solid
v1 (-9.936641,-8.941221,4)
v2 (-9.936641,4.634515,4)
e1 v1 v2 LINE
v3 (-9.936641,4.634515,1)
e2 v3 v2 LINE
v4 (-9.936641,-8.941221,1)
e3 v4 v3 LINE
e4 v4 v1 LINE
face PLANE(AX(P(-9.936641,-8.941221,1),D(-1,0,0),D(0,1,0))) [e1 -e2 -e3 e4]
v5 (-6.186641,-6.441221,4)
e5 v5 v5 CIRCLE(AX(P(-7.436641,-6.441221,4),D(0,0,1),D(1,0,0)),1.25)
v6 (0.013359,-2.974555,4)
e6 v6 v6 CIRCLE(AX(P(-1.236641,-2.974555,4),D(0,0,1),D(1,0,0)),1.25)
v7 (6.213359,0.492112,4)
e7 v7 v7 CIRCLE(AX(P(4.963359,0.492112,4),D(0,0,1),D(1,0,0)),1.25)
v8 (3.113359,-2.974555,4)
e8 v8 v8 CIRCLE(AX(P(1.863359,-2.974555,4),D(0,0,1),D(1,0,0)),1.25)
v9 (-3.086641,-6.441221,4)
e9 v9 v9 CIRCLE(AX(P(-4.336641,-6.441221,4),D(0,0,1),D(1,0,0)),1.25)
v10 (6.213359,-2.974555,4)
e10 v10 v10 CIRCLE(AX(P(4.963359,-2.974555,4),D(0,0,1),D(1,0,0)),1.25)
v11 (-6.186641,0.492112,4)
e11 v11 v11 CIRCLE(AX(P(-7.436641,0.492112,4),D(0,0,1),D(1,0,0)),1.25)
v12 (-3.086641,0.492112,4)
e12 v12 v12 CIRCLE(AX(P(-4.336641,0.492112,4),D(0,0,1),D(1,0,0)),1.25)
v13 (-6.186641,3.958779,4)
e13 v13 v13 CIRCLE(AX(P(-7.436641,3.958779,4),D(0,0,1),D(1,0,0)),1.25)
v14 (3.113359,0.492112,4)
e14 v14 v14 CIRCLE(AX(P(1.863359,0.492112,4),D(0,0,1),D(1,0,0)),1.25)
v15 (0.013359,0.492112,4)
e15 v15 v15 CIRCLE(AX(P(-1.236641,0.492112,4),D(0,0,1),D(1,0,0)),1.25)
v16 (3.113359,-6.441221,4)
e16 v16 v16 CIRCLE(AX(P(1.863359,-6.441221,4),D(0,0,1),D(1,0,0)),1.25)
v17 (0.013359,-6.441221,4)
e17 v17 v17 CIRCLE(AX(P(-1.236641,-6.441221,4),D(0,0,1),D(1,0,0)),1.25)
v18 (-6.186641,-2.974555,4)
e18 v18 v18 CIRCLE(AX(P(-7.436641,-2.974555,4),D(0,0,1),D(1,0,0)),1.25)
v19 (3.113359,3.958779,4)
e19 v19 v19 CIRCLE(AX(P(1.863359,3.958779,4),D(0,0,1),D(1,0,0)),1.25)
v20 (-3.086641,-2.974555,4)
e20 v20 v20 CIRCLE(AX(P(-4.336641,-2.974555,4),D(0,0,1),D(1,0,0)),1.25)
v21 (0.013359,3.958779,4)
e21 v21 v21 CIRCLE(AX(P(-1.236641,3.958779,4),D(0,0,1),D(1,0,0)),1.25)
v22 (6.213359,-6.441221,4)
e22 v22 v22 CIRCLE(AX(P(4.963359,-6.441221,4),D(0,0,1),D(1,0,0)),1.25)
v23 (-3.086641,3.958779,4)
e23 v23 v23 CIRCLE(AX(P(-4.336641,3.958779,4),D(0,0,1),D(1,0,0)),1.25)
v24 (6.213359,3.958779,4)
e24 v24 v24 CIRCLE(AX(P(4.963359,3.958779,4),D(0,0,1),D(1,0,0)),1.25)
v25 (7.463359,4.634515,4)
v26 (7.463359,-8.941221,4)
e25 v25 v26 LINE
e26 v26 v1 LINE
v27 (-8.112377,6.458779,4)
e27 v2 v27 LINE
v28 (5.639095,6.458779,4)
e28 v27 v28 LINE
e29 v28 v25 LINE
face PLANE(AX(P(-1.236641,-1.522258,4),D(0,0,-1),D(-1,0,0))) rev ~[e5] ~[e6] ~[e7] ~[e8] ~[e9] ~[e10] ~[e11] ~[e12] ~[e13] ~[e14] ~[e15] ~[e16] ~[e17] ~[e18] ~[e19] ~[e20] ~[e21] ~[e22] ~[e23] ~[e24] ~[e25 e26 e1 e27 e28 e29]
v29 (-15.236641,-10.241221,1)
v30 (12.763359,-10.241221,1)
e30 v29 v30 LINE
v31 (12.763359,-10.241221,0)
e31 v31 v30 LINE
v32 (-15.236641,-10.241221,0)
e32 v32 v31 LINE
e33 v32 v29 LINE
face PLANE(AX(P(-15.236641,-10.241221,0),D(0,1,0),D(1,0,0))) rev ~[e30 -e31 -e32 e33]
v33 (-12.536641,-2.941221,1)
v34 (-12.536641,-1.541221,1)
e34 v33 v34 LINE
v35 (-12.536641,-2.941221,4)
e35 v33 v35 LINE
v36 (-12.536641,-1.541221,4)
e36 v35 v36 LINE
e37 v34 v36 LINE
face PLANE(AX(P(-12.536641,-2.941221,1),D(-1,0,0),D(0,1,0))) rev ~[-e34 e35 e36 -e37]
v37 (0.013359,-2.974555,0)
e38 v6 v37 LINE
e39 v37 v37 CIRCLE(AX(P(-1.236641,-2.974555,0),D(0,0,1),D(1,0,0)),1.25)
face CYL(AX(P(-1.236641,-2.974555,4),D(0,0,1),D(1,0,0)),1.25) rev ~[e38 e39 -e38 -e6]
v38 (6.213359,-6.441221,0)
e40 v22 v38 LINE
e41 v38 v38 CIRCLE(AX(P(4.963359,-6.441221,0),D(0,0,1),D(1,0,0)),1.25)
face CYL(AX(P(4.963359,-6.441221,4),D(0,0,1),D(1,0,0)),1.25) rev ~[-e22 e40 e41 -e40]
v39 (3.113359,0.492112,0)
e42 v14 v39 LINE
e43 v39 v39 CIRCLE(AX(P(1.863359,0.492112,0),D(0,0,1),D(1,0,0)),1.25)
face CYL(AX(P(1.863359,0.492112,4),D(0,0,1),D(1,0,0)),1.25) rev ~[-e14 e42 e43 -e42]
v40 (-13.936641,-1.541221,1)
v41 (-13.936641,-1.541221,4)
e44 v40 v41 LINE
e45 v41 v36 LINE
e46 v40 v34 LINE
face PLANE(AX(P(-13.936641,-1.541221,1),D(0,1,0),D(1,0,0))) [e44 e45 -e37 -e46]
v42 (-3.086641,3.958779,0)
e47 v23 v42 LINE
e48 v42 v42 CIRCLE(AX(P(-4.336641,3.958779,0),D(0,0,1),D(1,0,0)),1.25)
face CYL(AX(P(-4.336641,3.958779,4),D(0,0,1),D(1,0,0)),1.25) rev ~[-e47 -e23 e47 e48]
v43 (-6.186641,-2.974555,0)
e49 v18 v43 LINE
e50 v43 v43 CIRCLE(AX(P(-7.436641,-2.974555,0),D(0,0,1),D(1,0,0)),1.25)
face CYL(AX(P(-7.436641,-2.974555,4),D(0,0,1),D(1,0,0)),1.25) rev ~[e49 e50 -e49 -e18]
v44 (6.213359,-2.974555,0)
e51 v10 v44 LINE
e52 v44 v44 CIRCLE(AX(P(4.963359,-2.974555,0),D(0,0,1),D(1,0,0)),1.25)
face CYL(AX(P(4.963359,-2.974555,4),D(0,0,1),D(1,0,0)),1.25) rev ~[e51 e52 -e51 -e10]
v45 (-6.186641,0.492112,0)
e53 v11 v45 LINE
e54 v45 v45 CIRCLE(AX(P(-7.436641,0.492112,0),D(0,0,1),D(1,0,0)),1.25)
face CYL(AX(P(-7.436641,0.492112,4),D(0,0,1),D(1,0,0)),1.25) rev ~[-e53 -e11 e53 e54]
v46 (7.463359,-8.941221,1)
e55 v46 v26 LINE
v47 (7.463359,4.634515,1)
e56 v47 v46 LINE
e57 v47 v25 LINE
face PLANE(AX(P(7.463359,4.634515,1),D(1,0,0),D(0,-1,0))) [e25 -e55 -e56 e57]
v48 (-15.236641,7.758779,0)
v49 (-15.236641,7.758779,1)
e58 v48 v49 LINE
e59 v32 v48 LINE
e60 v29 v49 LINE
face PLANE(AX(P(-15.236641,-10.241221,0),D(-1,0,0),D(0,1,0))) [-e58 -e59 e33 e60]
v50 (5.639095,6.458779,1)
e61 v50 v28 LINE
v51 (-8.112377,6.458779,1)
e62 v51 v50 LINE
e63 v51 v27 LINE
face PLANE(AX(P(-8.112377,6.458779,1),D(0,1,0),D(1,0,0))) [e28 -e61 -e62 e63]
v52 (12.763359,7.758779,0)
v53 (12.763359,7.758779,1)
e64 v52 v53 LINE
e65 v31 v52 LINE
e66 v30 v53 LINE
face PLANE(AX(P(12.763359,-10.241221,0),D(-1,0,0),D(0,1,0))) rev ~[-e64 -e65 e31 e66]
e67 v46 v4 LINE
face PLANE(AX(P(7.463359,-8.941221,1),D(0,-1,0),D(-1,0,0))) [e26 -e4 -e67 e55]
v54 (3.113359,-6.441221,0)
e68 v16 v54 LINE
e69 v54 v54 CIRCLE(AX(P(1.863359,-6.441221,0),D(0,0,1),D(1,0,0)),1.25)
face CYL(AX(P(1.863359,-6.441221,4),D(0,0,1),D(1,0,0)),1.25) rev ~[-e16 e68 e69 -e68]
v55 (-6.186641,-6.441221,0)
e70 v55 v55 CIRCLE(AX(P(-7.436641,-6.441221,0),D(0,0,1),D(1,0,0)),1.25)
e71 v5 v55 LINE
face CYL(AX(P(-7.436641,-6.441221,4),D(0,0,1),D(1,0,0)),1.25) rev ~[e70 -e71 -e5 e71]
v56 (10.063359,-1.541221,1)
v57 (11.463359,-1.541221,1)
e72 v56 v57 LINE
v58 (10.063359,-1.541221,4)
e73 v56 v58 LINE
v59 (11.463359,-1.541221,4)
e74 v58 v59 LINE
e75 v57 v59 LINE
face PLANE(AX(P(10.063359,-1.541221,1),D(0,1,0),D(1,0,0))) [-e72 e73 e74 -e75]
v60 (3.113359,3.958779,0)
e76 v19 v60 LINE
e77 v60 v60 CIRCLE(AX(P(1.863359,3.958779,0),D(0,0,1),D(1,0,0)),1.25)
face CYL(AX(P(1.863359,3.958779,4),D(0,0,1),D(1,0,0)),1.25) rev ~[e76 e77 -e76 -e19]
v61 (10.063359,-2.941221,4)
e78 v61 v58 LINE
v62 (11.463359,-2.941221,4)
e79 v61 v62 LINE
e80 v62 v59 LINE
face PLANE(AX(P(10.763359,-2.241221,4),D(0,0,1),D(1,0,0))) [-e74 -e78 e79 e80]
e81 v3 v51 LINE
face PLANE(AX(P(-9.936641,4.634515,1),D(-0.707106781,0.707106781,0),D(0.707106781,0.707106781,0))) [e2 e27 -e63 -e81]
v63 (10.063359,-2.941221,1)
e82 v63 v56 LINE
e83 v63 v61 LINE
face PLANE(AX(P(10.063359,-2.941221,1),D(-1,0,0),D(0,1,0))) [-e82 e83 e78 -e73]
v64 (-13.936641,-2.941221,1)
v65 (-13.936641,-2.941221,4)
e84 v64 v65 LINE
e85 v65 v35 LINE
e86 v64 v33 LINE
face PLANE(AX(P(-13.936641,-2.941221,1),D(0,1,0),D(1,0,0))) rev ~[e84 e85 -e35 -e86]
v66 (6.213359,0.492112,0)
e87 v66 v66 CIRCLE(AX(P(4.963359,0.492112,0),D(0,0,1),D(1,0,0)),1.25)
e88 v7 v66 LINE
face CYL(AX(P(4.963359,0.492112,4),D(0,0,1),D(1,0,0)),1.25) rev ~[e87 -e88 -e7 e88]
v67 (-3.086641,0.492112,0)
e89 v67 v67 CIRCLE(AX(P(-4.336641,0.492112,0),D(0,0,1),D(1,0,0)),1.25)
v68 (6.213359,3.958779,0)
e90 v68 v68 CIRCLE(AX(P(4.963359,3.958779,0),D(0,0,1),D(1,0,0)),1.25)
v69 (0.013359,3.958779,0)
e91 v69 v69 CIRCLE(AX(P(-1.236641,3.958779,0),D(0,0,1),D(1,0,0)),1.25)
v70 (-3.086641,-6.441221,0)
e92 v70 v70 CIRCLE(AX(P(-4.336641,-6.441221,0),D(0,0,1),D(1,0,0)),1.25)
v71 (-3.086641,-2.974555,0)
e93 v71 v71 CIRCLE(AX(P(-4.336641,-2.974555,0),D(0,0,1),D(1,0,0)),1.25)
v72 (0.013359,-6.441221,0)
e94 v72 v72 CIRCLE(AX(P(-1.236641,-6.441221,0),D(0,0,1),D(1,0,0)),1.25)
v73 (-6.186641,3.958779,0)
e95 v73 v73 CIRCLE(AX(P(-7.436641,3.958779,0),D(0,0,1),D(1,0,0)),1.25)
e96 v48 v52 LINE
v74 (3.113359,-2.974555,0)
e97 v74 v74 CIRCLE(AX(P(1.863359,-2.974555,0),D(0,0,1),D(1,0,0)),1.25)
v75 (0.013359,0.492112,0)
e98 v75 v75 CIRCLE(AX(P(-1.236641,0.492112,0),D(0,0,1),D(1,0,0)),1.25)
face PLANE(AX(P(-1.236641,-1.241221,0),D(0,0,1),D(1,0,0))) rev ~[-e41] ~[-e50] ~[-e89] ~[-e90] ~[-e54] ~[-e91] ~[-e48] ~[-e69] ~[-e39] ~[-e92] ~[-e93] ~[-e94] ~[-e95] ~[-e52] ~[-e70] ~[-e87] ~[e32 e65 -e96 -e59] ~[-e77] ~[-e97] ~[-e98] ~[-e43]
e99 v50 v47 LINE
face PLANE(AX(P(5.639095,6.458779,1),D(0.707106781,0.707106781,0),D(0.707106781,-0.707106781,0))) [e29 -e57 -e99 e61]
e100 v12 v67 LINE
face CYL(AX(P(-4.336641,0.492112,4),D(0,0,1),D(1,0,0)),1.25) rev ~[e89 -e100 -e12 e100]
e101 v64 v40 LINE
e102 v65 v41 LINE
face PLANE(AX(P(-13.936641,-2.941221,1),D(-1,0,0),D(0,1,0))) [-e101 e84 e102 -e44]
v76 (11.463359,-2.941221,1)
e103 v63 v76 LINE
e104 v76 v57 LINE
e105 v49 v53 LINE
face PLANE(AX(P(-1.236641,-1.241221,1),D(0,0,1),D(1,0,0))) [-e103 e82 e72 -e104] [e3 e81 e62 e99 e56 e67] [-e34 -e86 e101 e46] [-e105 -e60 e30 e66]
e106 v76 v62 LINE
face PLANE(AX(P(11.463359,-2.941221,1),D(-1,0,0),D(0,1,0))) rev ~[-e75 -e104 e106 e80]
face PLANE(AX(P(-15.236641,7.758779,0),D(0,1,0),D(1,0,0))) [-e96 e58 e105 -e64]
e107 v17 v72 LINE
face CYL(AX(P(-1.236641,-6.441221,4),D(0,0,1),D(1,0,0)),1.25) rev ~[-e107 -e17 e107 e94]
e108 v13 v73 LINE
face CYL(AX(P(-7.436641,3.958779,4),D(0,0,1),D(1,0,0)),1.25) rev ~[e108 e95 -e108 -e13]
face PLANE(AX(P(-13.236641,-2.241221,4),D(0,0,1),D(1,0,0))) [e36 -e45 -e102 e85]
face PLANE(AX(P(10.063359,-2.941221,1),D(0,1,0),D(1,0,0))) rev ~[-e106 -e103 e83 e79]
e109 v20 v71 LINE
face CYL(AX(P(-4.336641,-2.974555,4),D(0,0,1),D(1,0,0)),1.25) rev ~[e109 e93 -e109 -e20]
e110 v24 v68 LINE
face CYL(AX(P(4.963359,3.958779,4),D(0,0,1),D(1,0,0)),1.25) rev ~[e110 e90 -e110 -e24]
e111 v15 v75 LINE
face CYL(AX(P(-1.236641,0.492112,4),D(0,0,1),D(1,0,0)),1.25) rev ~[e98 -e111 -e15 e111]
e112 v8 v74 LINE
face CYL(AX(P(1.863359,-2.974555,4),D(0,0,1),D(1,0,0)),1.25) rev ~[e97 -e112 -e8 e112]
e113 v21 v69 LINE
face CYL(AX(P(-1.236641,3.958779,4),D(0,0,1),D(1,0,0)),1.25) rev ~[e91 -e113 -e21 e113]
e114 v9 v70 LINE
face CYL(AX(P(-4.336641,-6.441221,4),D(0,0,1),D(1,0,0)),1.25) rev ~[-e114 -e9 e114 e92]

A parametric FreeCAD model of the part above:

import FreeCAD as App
import Part
import Sketcher
Q = App.Units.Quantity

doc = App.newDocument("Part")
body = doc.addObject("PartDesign::Body", "Body")

sketch1 = body.newObject("Sketcher::SketchObject", "Sketch")
sketch1.AttachmentSupport = (doc.getObject("XY_Plane"), [""])
sketch1.MapMode = "FlatFace"
sketch1.addGeometry([
    Part.LineSegment(App.Vector(-15, 8, 0), App.Vector(-15, -10, 0)),
    Part.LineSegment(App.Vector(-15, -10, 0), App.Vector(13, -10, 0)),
    Part.LineSegment(App.Vector(13, -10, 0), App.Vector(13, 8, 0)),
    Part.LineSegment(App.Vector(13, 8, 0), App.Vector(-15, 8, 0)),
], False)
sketch1.addConstraint([
    Sketcher.Constraint("Coincident", 0, 2, 1, 1),
    Sketcher.Constraint("Coincident", 1, 2, 2, 1),
    Sketcher.Constraint("Coincident", 2, 2, 3, 1),
    Sketcher.Constraint("Coincident", 3, 2, 0, 1),
    Sketcher.Constraint("Vertical", 0),
    Sketcher.Constraint("Horizontal", 1),
    Sketcher.Constraint("Vertical", 2),
    Sketcher.Constraint("Horizontal", 3),
    Sketcher.Constraint("DistanceX", 1, 1, 1, 2, Q("28 mm")),
    Sketcher.Constraint("DistanceY", 0, 2, 0, 1, Q("18 mm")),
    Sketcher.Constraint("DistanceX", 0, 2, -1, 1, Q("15.236641 mm")),
    Sketcher.Constraint("DistanceY", 0, 2, -1, 1, Q("10.241221 mm")),
])
pad1 = body.newObject("PartDesign::Pad", "Pad")
pad1.Profile = sketch1
pad1.Length = 1

sketch2 = body.newObject("Sketcher::SketchObject", "Sketch001")
sketch2.AttachmentSupport = (doc.getObject("XY_Plane"), [""])
sketch2.MapMode = "FlatFace"
sketch2.AttachmentOffset = App.Placement(App.Vector(0, 0, 1), App.Rotation())
sketch2.addGeometry([
    Part.LineSegment(App.Vector(10.1, -1.5, 0), App.Vector(10.1, -2.9, 0)),
    Part.LineSegment(App.Vector(10.1, -2.9, 0), App.Vector(11.5, -2.9, 0)),
    Part.LineSegment(App.Vector(11.5, -2.9, 0), App.Vector(11.5, -1.5, 0)),
    Part.LineSegment(App.Vector(11.5, -1.5, 0), App.Vector(10.1, -1.5, 0)),
    Part.LineSegment(App.Vector(-13.9, -1.5, 0), App.Vector(-13.9, -2.9, 0)),
    Part.LineSegment(App.Vector(-13.9, -2.9, 0), App.Vector(-12.5, -2.9, 0)),
    Part.LineSegment(App.Vector(-12.5, -2.9, 0), App.Vector(-12.5, -1.5, 0)),
    Part.LineSegment(App.Vector(-12.5, -1.5, 0), App.Vector(-13.9, -1.5, 0)),
    Part.LineSegment(App.Vector(5.6, 6.5, 0), App.Vector(-8.1, 6.5, 0)),
    Part.LineSegment(App.Vector(-8.1, 6.5, 0), App.Vector(-9.9, 4.6, 0)),
    Part.LineSegment(App.Vector(-9.9, 4.6, 0), App.Vector(-9.9, -8.9, 0)),
    Part.LineSegment(App.Vector(-9.9, -8.9, 0), App.Vector(7.5, -8.9, 0)),
    Part.LineSegment(App.Vector(7.5, -8.9, 0), App.Vector(7.5, 4.6, 0)),
    Part.LineSegment(App.Vector(7.5, 4.6, 0), App.Vector(5.6, 6.5, 0)),
], False)
sketch2.addConstraint([
    Sketcher.Constraint("Coincident", 0, 2, 1, 1),
    Sketcher.Constraint("Coincident", 1, 2, 2, 1),
    Sketcher.Constraint("Coincident", 2, 2, 3, 1),
    Sketcher.Constraint("Coincident", 3, 2, 0, 1),
    Sketcher.Constraint("Coincident", 4, 2, 5, 1),
    Sketcher.Constraint("Coincident", 5, 2, 6, 1),
    Sketcher.Constraint("Coincident", 6, 2, 7, 1),
    Sketcher.Constraint("Coincident", 7, 2, 4, 1),
    Sketcher.Constraint("Coincident", 8, 2, 9, 1),
    Sketcher.Constraint("Coincident", 9, 2, 10, 1),
    Sketcher.Constraint("Coincident", 10, 2, 11, 1),
    Sketcher.Constraint("Coincident", 11, 2, 12, 1),
    Sketcher.Constraint("Coincident", 12, 2, 13, 1),
    Sketcher.Constraint("Coincident", 13, 2, 8, 1),
    Sketcher.Constraint("Vertical", 0),
    Sketcher.Constraint("Horizontal", 1),
    Sketcher.Constraint("Vertical", 2),
    Sketcher.Constraint("Horizontal", 3),
    Sketcher.Constraint("Vertical", 4),
    Sketcher.Constraint("Horizontal", 5),
    Sketcher.Constraint("Vertical", 6),
    Sketcher.Constraint("Horizontal", 7),
    Sketcher.Constraint("Horizontal", 8),
    Sketcher.Constraint("Vertical", 10),
    Sketcher.Constraint("Horizontal", 11),
    Sketcher.Constraint("Vertical", 12),
    Sketcher.Constraint("Perpendicular", 9, 13),
    Sketcher.Constraint("Horizontal", 1, 2, 4, 2),
    Sketcher.Constraint("Horizontal", 3, 2, 6, 2),
    Sketcher.Constraint("Horizontal", 9, 2, 12, 2),
    Sketcher.Constraint("Equal", 3, 5),
    Sketcher.Constraint("Equal", 7, 0),
    Sketcher.Constraint("Equal", 9, 13),
    Sketcher.Constraint("DistanceX", 1, 1, 1, 2, Q("1.4 mm")),
    Sketcher.Constraint("DistanceX", 11, 1, 11, 2, Q("17.4 mm")),
    Sketcher.Constraint("DistanceX", 4, 2, 0, 2, Q("24 mm")),
    Sketcher.Constraint("DistanceY", 6, 2, 8, 2, Q("8 mm")),
    Sketcher.Constraint("DistanceX", 7, 2, 9, 2, Q("4 mm")),
    Sketcher.Constraint("DistanceY", 10, 2, 5, 2, Q("6 mm")),
    Sketcher.Constraint("Distance", 9, Q("2.579899 mm")),
    Sketcher.Constraint("DistanceX", -1, 1, 0, 2, Q("10.063359 mm")),
    Sketcher.Constraint("DistanceY", 0, 2, -1, 1, Q("2.941221 mm")),
])
pad2 = body.newObject("PartDesign::Pad", "Pad001")
pad2.Profile = sketch2
pad2.Length = 3

sketch3 = body.newObject("Sketcher::SketchObject", "Sketch002")
sketch3.AttachmentSupport = (doc.getObject("XY_Plane"), [""])
sketch3.MapMode = "FlatFace"
sketch3.AttachmentOffset = App.Placement(App.Vector(0, 0, 4), App.Rotation())
sketch3.addGeometry([
    Part.Circle(App.Vector(-7.4, 4, 0), App.Vector(0, 0, 1), 1.2),
    Part.Circle(App.Vector(-4.3, 4, 0), App.Vector(0, 0, 1), 1.2),
    Part.Circle(App.Vector(-1.2, 4, 0), App.Vector(0, 0, 1), 1.2),
    Part.Circle(App.Vector(1.9, 4, 0), App.Vector(0, 0, 1), 1.2),
    Part.Circle(App.Vector(5, 4, 0), App.Vector(0, 0, 1), 1.2),
    Part.Circle(App.Vector(-4.3, 0.5, 0), App.Vector(0, 0, 1), 1.2),
    Part.Circle(App.Vector(-1.2, 0.5, 0), App.Vector(0, 0, 1), 1.2),
    Part.Circle(App.Vector(1.9, 0.5, 0), App.Vector(0, 0, 1), 1.2),
    Part.Circle(App.Vector(5, 0.5, 0), App.Vector(0, 0, 1), 1.2),
    Part.Circle(App.Vector(-4.3, -3, 0), App.Vector(0, 0, 1), 1.2),
    Part.Circle(App.Vector(-1.2, -3, 0), App.Vector(0, 0, 1), 1.2),
    Part.Circle(App.Vector(1.9, -3, 0), App.Vector(0, 0, 1), 1.2),
    Part.Circle(App.Vector(5, -3, 0), App.Vector(0, 0, 1), 1.2),
    Part.Circle(App.Vector(-4.3, -6.4, 0), App.Vector(0, 0, 1), 1.2),
    Part.Circle(App.Vector(-1.2, -6.4, 0), App.Vector(0, 0, 1), 1.2),
    Part.Circle(App.Vector(1.9, -6.4, 0), App.Vector(0, 0, 1), 1.2),
    Part.Circle(App.Vector(5, -6.4, 0), App.Vector(0, 0, 1), 1.2),
    Part.Circle(App.Vector(-7.4, 0.5, 0), App.Vector(0, 0, 1), 1.2),
    Part.Circle(App.Vector(-7.4, -3, 0), App.Vector(0, 0, 1), 1.2),
    Part.Circle(App.Vector(-7.4, -6.4, 0), App.Vector(0, 0, 1), 1.2),
], False)
sketch3.addConstraint([
    Sketcher.Constraint("Equal", 0, 1),
    Sketcher.Constraint("Equal", 1, 2),
    Sketcher.Constraint("Equal", 2, 3),
    Sketcher.Constraint("Equal", 3, 4),
    Sketcher.Constraint("Equal", 4, 5),
    Sketcher.Constraint("Equal", 5, 6),
    Sketcher.Constraint("Equal", 6, 7),
    Sketcher.Constraint("Equal", 7, 8),
    Sketcher.Constraint("Equal", 8, 9),
    Sketcher.Constraint("Equal", 9, 10),
    Sketcher.Constraint("Equal", 10, 11),
    Sketcher.Constraint("Equal", 11, 12),
    Sketcher.Constraint("Equal", 12, 13),
    Sketcher.Constraint("Equal", 13, 14),
    Sketcher.Constraint("Equal", 14, 15),
    Sketcher.Constraint("Equal", 15, 16),
    Sketcher.Constraint("Equal", 16, 17),
    Sketcher.Constraint("Equal", 17, 18),
    Sketcher.Constraint("Equal", 18, 19),
    Sketcher.Constraint("Horizontal", 0, 3, 1, 3),
    Sketcher.Constraint("Horizontal", 1, 3, 2, 3),
    Sketcher.Constraint("Horizontal", 2, 3, 3, 3),
    Sketcher.Constraint("Horizontal", 3, 3, 4, 3),
    Sketcher.Constraint("Horizontal", 5, 3, 6, 3),
    Sketcher.Constraint("Horizontal", 6, 3, 7, 3),
    Sketcher.Constraint("Horizontal", 7, 3, 8, 3),
    Sketcher.Constraint("Horizontal", 9, 3, 10, 3),
    Sketcher.Constraint("Horizontal", 10, 3, 11, 3),
    Sketcher.Constraint("Horizontal", 11, 3, 12, 3),
    Sketcher.Constraint("Horizontal", 13, 3, 14, 3),
    Sketcher.Constraint("Horizontal", 14, 3, 15, 3),
    Sketcher.Constraint("Horizontal", 15, 3, 16, 3),
    Sketcher.Constraint("Horizontal", 8, 3, 17, 3),
    Sketcher.Constraint("Horizontal", 12, 3, 18, 3),
    Sketcher.Constraint("Horizontal", 16, 3, 19, 3),
    Sketcher.Constraint("Vertical", 1, 3, 5, 3),
    Sketcher.Constraint("Vertical", 2, 3, 6, 3),
    Sketcher.Constraint("Vertical", 3, 3, 7, 3),
    Sketcher.Constraint("Vertical", 4, 3, 8, 3),
    Sketcher.Constraint("Vertical", 5, 3, 9, 3),
    Sketcher.Constraint("Vertical", 6, 3, 10, 3),
    Sketcher.Constraint("Vertical", 7, 3, 11, 3),
    Sketcher.Constraint("Vertical", 8, 3, 12, 3),
    Sketcher.Constraint("Vertical", 9, 3, 13, 3),
    Sketcher.Constraint("Vertical", 10, 3, 14, 3),
    Sketcher.Constraint("Vertical", 11, 3, 15, 3),
    Sketcher.Constraint("Vertical", 12, 3, 16, 3),
    Sketcher.Constraint("Vertical", 0, 3, 17, 3),
    Sketcher.Constraint("Vertical", 17, 3, 18, 3),
    Sketcher.Constraint("Vertical", 18, 3, 19, 3),
    Sketcher.Constraint("Diameter", 0, Q("2.5 mm")),
    Sketcher.Constraint("DistanceX", 0, 3, 1, 3, Q("3.1 mm")),
    Sketcher.Constraint("DistanceX", 1, 3, 2, 3, Q("3.1 mm")),
    Sketcher.Constraint("DistanceX", 2, 3, 3, 3, Q("3.1 mm")),
    Sketcher.Constraint("DistanceX", 3, 3, 4, 3, Q("3.1 mm")),
    Sketcher.Constraint("DistanceX", 0, 3, -1, 1, Q("7.436641 mm")),
    Sketcher.Constraint("DistanceY", -1, 1, 0, 3, Q("3.958779 mm")),
    Sketcher.Constraint("DistanceY", -1, 1, 5, 3, Q("0.492112 mm")),
    Sketcher.Constraint("DistanceY", 13, 3, -1, 1, Q("6.441221 mm")),
    Sketcher.Constraint("DistanceY", 9, 3, -1, 1, Q("2.974555 mm")),
])
pocket1 = body.newObject("PartDesign::Pocket", "Pocket")
pocket1.Profile = sketch3
pocket1.Length = 10

doc.recompute()
